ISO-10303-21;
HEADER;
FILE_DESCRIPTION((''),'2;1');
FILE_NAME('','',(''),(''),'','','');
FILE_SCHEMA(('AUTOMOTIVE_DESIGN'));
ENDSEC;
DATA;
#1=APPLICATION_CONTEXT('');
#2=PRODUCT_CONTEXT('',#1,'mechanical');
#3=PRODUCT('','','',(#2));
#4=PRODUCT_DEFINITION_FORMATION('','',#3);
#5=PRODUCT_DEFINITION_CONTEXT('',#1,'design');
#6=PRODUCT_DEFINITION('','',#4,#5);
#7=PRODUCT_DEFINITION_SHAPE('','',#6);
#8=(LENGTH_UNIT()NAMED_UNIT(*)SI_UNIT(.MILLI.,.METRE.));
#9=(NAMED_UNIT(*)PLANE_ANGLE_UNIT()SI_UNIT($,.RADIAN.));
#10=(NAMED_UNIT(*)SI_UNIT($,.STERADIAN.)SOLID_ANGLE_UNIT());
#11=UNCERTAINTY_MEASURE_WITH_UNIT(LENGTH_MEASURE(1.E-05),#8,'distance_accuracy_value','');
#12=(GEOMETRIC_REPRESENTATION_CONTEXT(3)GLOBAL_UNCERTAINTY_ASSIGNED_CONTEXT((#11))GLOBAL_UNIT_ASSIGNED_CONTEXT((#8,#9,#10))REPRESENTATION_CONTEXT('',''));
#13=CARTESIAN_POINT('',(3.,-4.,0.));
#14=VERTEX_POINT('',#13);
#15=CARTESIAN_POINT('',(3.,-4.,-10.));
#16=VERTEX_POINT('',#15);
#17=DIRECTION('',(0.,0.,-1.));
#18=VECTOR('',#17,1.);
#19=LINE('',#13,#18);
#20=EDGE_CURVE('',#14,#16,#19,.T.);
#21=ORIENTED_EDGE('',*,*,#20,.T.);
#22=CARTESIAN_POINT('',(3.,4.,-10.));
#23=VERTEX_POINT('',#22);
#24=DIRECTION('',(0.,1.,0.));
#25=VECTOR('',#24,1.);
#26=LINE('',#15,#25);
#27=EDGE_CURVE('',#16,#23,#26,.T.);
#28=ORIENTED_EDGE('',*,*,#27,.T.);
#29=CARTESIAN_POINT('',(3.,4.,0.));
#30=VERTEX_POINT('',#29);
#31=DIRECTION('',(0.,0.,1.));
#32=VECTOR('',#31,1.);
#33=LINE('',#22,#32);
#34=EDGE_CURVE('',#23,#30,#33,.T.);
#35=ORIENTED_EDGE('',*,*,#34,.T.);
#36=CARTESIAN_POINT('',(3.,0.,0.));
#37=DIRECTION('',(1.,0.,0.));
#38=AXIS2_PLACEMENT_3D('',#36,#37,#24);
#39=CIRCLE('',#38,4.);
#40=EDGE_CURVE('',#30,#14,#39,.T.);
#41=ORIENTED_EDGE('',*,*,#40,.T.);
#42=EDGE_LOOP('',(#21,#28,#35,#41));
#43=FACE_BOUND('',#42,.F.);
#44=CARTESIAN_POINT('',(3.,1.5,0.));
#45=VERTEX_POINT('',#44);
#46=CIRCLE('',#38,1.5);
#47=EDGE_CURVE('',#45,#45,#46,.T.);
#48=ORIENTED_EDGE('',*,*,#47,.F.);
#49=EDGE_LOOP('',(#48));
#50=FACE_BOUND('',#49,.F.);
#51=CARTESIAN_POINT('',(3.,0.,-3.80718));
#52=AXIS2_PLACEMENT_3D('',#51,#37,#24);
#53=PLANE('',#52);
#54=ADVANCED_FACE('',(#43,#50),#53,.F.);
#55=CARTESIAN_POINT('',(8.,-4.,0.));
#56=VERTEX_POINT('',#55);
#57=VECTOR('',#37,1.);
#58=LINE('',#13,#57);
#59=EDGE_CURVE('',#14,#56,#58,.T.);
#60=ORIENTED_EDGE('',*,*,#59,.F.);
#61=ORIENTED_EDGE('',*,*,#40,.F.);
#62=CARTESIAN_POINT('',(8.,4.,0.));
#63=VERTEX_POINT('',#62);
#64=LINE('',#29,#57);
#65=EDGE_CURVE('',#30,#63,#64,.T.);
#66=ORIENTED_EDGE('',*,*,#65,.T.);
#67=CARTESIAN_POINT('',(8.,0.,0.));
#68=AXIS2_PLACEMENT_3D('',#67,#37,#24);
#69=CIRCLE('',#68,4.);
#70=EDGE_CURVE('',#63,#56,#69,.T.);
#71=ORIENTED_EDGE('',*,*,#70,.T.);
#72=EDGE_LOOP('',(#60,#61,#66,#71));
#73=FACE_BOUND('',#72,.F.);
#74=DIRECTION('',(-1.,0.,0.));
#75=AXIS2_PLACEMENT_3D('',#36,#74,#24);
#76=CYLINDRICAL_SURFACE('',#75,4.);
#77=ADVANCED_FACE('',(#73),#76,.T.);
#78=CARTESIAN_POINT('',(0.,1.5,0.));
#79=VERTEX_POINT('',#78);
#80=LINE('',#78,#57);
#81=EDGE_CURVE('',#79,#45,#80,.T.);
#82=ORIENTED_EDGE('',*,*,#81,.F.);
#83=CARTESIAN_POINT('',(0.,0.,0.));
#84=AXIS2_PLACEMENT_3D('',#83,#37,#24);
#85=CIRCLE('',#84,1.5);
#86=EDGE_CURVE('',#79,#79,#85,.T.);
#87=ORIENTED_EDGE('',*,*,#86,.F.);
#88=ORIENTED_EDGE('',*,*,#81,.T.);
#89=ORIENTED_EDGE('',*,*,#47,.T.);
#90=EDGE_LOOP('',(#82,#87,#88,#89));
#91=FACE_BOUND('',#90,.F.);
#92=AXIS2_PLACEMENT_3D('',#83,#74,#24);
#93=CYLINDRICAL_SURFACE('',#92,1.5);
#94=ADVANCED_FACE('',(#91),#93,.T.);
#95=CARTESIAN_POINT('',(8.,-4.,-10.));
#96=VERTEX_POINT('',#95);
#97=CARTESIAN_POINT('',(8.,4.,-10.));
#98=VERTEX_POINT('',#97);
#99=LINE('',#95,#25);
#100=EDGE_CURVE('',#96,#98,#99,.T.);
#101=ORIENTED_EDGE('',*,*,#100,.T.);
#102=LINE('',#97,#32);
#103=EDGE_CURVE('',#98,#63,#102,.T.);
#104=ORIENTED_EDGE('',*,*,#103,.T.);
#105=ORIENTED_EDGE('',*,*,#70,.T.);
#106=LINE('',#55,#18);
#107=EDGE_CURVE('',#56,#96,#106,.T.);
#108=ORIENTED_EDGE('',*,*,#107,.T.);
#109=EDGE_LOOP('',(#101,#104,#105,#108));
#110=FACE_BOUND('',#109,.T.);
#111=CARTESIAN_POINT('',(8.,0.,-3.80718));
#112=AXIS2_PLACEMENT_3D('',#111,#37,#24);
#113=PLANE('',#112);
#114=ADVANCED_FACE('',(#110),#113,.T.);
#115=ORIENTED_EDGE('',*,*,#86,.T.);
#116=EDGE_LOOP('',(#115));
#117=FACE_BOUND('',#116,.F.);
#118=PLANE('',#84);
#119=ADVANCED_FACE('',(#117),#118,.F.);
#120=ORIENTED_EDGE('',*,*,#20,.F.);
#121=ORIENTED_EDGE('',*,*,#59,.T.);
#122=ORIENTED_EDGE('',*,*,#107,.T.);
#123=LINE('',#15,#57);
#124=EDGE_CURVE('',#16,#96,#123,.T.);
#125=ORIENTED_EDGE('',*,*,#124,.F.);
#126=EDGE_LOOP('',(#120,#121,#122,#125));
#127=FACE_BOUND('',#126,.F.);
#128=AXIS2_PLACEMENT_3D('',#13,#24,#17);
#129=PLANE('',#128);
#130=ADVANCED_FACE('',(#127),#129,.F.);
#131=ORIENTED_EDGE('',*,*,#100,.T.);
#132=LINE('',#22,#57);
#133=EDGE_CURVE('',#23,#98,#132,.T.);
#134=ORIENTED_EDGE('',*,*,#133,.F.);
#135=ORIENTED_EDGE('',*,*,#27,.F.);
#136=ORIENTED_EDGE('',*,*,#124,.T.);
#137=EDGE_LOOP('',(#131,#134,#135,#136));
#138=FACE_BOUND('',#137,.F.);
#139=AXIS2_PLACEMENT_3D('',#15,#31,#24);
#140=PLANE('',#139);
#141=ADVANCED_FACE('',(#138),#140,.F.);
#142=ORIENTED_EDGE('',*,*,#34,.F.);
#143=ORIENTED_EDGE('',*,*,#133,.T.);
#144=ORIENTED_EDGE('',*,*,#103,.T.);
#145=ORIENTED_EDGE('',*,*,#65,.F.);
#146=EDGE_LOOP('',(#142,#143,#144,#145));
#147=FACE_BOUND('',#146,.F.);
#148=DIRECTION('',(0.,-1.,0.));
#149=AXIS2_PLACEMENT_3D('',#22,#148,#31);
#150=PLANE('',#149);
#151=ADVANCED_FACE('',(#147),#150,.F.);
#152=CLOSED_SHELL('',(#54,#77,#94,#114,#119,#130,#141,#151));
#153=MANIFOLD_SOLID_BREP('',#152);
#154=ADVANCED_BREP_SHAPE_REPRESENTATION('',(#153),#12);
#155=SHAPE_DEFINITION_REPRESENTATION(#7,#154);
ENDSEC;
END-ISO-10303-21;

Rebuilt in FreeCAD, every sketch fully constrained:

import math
import FreeCAD as App
import Part
import Sketcher

V = App.Vector
Q = App.Units.Quantity

doc = App.newDocument("Part")
body = doc.addObject("PartDesign::Body", "Body")

sketch1 = body.newObject("Sketcher::SketchObject", "Sketch")
sketch1.AttachmentSupport = (doc.getObject("YZ_Plane"), [""])
sketch1.MapMode = "FlatFace"
sketch1.addGeometry(Part.Circle(V(0, 0, 0), V(0, 0, 1), 1.5), False)
sketch1.addConstraint([
    Sketcher.Constraint("Coincident", 0, 3, -1, 1),
    Sketcher.Constraint("Diameter", 0, Q("3 mm")),
])
pad1 = body.newObject("PartDesign::Pad", "Pad")
pad1.Profile = sketch1
pad1.Length = 3

sketch2 = body.newObject("Sketcher::SketchObject", "Sketch001")
sketch2.AttachmentSupport = (doc.getObject("YZ_Plane"), [""])
sketch2.MapMode = "FlatFace"
sketch2.AttachmentOffset = App.Placement(V(0, 0, 3), App.Rotation())
sketch2.addGeometry([
    Part.LineSegment(V(4, -10, 0), V(4, 0, 0)),
    Part.ArcOfCircle(Part.Circle(V(0, 0, 0), V(0, 0, 1), 4), math.radians(0), math.radians(180)),
    Part.LineSegment(V(-4, 0, 0), V(-4, -10, 0)),
    Part.LineSegment(V(-4, -10, 0), V(4, -10, 0)),
], False)
sketch2.addConstraint([
    Sketcher.Constraint("Tangent", 0, 2, 1, 1),
    Sketcher.Constraint("Tangent", 1, 2, 2, 1),
    Sketcher.Constraint("Coincident", 2, 2, 3, 1),
    Sketcher.Constraint("Coincident", 3, 2, 0, 1),
    Sketcher.Constraint("Vertical", 0),
    Sketcher.Constraint("Vertical", 2),
    Sketcher.Constraint("Horizontal", 3),
    Sketcher.Constraint("Coincident", 1, 3, -1, 1),
    Sketcher.Constraint("Radius", 1, Q("4 mm")),
    Sketcher.Constraint("DistanceY", 0, 1, 0, 2, Q("10 mm")),
])
pad2 = body.newObject("PartDesign::Pad", "Pad001")
pad2.Profile = sketch2
pad2.Length = 5

doc.recompute()
